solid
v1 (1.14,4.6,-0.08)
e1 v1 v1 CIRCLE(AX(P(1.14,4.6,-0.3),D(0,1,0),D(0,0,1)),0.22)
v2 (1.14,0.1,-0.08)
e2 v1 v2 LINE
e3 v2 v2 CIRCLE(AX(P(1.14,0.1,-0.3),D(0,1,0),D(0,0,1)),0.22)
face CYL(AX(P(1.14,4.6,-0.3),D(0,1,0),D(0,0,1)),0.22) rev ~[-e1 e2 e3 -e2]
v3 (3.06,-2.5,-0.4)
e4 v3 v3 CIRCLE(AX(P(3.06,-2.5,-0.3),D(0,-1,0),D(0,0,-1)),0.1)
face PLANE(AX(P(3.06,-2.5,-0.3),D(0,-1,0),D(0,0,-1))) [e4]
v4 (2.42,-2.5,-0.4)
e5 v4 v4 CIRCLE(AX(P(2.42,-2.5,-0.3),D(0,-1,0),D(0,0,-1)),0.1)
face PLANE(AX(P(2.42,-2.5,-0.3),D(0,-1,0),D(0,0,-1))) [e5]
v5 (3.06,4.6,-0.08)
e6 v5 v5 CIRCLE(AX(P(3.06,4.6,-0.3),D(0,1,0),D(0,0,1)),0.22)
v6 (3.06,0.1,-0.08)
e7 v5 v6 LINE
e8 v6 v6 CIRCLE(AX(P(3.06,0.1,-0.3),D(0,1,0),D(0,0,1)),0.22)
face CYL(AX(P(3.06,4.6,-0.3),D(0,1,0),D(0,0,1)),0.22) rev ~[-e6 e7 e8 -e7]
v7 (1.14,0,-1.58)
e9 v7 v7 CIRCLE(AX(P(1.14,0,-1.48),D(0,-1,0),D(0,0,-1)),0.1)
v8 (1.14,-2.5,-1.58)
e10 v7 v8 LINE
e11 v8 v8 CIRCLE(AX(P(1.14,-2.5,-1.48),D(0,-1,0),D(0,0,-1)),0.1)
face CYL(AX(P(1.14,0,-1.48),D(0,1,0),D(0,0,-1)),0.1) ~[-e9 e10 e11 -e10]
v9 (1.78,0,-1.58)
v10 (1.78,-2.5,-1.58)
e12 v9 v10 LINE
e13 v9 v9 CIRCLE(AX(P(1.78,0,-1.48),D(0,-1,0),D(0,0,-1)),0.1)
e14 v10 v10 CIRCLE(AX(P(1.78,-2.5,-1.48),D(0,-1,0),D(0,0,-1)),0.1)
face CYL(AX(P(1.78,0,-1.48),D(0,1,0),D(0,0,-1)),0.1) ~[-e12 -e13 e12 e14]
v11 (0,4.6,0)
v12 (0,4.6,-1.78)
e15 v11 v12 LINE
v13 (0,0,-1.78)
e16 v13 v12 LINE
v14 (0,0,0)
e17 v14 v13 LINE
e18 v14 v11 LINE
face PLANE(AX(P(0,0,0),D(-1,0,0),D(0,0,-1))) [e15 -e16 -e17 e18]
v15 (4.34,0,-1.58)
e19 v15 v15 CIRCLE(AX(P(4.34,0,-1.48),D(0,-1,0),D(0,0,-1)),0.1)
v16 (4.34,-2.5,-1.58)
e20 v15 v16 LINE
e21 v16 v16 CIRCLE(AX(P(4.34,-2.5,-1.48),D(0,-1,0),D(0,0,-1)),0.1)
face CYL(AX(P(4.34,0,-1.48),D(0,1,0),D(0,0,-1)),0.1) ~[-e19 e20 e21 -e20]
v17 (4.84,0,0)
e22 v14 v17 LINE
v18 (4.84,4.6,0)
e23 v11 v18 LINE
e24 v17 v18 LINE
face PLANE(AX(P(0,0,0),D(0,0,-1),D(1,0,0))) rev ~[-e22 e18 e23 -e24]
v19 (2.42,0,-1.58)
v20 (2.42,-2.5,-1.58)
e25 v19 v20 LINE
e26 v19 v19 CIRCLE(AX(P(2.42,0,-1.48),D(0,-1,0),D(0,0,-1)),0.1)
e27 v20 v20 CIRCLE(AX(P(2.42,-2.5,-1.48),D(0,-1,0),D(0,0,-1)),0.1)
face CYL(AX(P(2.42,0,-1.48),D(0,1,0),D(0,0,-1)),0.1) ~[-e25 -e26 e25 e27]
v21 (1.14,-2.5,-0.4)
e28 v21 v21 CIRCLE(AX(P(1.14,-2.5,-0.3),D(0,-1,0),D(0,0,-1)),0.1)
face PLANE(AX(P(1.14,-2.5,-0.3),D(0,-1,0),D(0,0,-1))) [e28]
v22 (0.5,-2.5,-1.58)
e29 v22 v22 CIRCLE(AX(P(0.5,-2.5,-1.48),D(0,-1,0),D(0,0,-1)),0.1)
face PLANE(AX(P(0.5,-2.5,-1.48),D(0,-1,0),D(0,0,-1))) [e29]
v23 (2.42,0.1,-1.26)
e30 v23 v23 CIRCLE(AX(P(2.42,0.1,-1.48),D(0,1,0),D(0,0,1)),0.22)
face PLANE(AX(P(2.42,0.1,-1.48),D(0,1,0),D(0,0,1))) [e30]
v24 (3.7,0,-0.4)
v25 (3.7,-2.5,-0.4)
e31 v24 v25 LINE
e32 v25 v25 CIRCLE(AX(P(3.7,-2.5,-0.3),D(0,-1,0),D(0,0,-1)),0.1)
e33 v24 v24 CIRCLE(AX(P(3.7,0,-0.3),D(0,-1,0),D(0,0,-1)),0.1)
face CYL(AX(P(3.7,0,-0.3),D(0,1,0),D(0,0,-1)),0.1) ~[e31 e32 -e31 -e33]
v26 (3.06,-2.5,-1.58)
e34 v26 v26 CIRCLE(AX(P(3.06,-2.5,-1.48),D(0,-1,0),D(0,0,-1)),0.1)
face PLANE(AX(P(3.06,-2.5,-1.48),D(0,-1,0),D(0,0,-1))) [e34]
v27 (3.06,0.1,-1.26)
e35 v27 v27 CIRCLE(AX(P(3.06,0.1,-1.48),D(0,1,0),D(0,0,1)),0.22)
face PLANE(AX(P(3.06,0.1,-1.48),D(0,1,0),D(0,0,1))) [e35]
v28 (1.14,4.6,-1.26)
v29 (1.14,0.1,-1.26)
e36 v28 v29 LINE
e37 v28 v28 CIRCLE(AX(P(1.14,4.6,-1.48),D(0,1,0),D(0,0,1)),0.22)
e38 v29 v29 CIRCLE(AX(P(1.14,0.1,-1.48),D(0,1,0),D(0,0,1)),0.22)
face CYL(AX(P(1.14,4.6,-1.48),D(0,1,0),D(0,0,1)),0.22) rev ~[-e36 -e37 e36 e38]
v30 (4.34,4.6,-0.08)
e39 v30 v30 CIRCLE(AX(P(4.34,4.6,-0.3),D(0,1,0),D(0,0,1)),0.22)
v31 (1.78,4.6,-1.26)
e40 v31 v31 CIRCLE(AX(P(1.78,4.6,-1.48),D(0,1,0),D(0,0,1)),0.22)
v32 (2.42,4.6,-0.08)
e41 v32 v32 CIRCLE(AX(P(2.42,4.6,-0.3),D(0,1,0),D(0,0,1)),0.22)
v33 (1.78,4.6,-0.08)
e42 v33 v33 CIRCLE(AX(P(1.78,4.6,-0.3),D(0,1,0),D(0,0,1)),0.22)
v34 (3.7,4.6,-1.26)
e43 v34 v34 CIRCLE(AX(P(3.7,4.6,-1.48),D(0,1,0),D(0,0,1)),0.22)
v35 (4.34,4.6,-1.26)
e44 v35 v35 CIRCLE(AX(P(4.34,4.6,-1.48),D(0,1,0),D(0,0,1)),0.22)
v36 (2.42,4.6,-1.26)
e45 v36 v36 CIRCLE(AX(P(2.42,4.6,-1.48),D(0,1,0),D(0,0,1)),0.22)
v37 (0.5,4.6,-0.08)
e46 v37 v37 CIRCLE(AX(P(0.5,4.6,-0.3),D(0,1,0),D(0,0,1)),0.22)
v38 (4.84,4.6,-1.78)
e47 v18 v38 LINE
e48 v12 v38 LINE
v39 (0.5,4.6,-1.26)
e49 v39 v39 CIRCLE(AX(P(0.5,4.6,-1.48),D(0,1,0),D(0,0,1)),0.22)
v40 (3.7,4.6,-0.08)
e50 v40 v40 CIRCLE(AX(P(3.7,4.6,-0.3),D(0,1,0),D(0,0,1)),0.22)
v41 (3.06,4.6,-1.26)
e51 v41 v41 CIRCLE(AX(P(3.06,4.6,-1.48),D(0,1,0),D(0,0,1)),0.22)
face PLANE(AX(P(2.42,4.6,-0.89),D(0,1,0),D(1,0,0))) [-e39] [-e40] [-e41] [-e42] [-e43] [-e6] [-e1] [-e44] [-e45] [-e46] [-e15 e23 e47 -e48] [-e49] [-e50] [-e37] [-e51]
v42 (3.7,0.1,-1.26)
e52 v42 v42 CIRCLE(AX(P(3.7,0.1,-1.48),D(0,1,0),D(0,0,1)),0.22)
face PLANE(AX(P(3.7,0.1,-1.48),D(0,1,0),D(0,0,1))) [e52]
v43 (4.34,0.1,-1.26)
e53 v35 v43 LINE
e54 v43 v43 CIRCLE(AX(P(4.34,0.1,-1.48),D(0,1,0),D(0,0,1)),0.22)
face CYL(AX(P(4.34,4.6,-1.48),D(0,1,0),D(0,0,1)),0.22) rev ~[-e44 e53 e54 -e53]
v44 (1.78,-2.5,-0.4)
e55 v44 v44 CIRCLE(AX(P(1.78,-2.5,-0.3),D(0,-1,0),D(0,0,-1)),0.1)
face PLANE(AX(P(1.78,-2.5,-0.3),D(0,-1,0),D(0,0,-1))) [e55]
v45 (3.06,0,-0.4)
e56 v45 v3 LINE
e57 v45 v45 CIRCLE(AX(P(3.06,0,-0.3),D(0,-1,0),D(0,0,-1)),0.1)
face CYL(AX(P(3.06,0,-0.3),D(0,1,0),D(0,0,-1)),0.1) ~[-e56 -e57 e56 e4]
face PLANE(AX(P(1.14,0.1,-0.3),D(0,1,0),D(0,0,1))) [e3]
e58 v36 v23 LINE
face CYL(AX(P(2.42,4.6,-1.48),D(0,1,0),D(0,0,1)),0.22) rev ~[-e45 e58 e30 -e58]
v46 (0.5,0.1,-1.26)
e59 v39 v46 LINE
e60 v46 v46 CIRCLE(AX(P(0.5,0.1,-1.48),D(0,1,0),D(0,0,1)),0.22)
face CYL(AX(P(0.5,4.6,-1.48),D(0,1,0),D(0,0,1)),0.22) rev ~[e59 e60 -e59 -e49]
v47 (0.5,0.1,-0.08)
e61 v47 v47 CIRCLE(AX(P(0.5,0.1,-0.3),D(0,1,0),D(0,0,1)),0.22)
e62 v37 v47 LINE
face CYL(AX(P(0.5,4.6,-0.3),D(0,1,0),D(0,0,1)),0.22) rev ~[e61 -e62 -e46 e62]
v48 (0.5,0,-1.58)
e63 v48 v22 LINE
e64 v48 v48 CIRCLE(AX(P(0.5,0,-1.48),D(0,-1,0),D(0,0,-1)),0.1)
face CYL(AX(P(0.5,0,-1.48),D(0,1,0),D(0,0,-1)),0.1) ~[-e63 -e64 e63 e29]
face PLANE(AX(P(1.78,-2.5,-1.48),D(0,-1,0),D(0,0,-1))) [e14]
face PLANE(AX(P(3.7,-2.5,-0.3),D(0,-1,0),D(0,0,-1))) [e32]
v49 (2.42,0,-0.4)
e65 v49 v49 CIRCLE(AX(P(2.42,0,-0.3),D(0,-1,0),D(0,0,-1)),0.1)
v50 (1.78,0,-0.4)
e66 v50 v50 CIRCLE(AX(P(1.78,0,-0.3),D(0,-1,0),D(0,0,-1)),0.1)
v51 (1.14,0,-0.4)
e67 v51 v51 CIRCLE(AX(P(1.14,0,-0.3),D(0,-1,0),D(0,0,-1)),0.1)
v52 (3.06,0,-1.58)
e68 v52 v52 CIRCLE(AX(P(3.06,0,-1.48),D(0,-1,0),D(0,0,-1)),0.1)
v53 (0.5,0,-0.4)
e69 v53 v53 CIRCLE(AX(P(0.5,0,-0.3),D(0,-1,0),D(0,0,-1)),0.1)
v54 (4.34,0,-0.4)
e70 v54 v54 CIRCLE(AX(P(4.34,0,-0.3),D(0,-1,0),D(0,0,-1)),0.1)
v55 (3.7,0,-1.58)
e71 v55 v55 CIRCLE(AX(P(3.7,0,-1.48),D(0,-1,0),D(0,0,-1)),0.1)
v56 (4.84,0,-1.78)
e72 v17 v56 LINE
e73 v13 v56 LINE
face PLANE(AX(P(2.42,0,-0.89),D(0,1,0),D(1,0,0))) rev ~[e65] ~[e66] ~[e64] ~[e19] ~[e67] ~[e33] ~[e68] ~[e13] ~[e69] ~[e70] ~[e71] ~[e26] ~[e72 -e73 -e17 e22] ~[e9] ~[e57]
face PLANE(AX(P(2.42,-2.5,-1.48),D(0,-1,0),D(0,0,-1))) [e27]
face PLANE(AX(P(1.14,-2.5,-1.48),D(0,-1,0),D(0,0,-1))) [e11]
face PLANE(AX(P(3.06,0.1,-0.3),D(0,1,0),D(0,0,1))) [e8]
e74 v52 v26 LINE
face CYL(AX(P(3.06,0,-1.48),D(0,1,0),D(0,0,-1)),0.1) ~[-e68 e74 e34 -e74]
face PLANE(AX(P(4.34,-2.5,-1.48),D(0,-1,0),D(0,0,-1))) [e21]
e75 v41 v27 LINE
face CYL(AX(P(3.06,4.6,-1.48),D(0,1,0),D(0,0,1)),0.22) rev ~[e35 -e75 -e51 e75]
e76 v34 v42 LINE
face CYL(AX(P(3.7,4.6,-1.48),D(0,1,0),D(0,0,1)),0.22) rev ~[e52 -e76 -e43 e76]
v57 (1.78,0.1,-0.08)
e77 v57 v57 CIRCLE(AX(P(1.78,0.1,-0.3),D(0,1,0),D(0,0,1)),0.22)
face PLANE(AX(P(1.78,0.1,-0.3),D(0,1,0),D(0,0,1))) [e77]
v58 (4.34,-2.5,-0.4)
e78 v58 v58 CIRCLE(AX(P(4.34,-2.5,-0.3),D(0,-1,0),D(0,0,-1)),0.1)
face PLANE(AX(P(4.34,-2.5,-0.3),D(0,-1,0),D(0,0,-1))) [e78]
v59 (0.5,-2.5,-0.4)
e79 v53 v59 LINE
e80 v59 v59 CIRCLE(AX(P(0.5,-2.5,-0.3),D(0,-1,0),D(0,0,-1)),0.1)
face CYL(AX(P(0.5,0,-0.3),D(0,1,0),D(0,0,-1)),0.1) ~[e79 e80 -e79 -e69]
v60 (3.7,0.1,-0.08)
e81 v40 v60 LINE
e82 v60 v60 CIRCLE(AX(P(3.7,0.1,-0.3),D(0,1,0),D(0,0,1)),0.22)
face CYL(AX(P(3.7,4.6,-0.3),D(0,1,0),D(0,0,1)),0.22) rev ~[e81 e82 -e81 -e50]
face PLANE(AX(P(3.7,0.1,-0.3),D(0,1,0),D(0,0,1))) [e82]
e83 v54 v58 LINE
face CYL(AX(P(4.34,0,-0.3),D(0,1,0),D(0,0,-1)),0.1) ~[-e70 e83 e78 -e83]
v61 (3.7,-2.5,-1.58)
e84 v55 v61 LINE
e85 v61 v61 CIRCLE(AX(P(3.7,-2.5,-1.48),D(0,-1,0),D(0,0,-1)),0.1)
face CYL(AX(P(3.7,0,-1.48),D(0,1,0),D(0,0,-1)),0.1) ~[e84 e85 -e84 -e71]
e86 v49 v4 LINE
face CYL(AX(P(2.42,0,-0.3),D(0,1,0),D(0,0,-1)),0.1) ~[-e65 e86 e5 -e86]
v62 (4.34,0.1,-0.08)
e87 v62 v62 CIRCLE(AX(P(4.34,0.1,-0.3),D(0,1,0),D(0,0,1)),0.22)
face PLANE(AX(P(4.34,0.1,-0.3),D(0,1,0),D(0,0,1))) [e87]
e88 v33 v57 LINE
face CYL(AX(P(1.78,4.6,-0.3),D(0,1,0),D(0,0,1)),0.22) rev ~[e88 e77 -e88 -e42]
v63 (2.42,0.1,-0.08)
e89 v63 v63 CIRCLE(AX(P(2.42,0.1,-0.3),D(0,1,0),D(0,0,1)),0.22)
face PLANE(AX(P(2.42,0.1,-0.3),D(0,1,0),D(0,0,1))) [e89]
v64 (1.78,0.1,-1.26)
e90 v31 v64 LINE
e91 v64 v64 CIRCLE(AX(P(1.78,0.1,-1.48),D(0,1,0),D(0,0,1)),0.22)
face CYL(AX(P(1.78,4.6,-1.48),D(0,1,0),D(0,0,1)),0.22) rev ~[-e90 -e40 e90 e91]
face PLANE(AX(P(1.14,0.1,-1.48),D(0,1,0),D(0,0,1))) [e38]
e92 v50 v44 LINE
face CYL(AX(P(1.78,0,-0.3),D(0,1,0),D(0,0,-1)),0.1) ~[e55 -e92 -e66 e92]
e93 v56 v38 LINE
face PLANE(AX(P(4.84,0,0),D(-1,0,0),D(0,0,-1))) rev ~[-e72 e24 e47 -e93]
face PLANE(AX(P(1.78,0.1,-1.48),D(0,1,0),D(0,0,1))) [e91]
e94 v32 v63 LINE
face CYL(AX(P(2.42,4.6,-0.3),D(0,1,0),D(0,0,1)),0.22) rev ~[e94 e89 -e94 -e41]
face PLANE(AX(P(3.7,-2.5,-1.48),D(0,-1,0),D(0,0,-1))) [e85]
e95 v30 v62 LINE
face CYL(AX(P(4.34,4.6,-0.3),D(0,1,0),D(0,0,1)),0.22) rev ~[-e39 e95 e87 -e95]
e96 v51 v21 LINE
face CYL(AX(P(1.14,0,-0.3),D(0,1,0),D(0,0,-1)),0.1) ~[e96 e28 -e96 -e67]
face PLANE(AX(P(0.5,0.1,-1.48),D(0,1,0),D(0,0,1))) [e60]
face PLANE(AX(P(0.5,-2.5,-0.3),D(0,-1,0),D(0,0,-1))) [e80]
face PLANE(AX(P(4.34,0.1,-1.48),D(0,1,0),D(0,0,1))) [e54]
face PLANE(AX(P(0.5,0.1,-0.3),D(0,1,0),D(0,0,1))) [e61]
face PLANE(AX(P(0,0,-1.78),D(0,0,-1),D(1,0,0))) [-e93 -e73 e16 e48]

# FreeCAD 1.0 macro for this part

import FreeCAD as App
import Part
import Sketcher
from FreeCAD import Vector
Q = App.Units.Quantity


def add_polygon(sketch, points):
    """Adds a closed chain of lines whose ends are joined by coincident constraints."""
    first, n = sketch.GeometryCount, len(points)
    for a, b in zip(points, points[1:] + points[:1]):
        sketch.addGeometry(Part.LineSegment(App.Vector(*a, 0), App.Vector(*b, 0)), False)
    for i in range(n):
        sketch.addConstraint(Sketcher.Constraint("Coincident", first + i, 2, first + (i + 1) % n, 1))

doc = App.newDocument("Part")
body = doc.addObject("PartDesign::Body", "Body")

sketch1 = doc.addObject("Sketcher::SketchObject", "Sketch")
body.addObject(sketch1)
sketch1.AttachmentSupport = (doc.XZ_Plane, [""])
sketch1.MapMode = "FlatFace"
add_polygon(sketch1, [(0, -1.8), (0, 0), (4.8, 0), (4.8, -1.8)])
sketch1.addConstraint([
    Sketcher.Constraint("Vertical", 0),
    Sketcher.Constraint("Horizontal", 1),
    Sketcher.Constraint("Vertical", 2),
    Sketcher.Constraint("Horizontal", 3),
    Sketcher.Constraint("Coincident", 0, 2, -1, 1),
    Sketcher.Constraint("DistanceX", 1, 1, 1, 2, Q("4.84 mm")),
    Sketcher.Constraint("DistanceY", 0, 1, 0, 2, Q("1.78 mm")),
])
pad1 = doc.addObject("PartDesign::Pad", "Pad")
body.addObject(pad1)
pad1.Profile = sketch1
pad1.Length = 4.6
pad1.Reversed = True

sketch2 = doc.addObject("Sketcher::SketchObject", "Sketch001")
body.addObject(sketch2)
sketch2.AttachmentSupport = (doc.XZ_Plane, [""])
sketch2.MapMode = "FlatFace"
sketch2.AttachmentOffset = App.Placement(Vector(0, 0, -4.6), App.Rotation())
sketch2.addGeometry([
    Part.Circle(Vector(0.5, -1.48, 0), Vector(0, 0, 1), 0.22),
    Part.Circle(Vector(1.14, -1.48, 0), Vector(0, 0, 1), 0.22),
    Part.Circle(Vector(1.78, -1.48, 0), Vector(0, 0, 1), 0.22),
    Part.Circle(Vector(2.42, -1.48, 0), Vector(0, 0, 1), 0.22),
    Part.Circle(Vector(3.06, -1.48, 0), Vector(0, 0, 1), 0.22),
    Part.Circle(Vector(3.7, -1.48, 0), Vector(0, 0, 1), 0.22),
    Part.Circle(Vector(4.34, -1.48, 0), Vector(0, 0, 1), 0.22),
    Part.Circle(Vector(0.5, -0.3, 0), Vector(0, 0, 1), 0.22),
    Part.Circle(Vector(1.14, -0.3, 0), Vector(0, 0, 1), 0.22),
    Part.Circle(Vector(1.78, -0.3, 0), Vector(0, 0, 1), 0.22),
    Part.Circle(Vector(2.42, -0.3, 0), Vector(0, 0, 1), 0.22),
    Part.Circle(Vector(3.06, -0.3, 0), Vector(0, 0, 1), 0.22),
    Part.Circle(Vector(3.7, -0.3, 0), Vector(0, 0, 1), 0.22),
    Part.Circle(Vector(4.34, -0.3, 0), Vector(0, 0, 1), 0.22),
], False)
sketch2.addConstraint([
    Sketcher.Constraint("Equal", 0, 1),
    Sketcher.Constraint("Equal", 1, 2),
    Sketcher.Constraint("Equal", 2, 3),
    Sketcher.Constraint("Equal", 3, 4),
    Sketcher.Constraint("Equal", 4, 5),
    Sketcher.Constraint("Equal", 5, 6),
    Sketcher.Constraint("Equal", 6, 7),
    Sketcher.Constraint("Equal", 7, 8),
    Sketcher.Constraint("Equal", 8, 9),
    Sketcher.Constraint("Equal", 9, 10),
    Sketcher.Constraint("Equal", 10, 11),
    Sketcher.Constraint("Equal", 11, 12),
    Sketcher.Constraint("Equal", 12, 13),
    Sketcher.Constraint("Horizontal", 0, 3, 1, 3),
    Sketcher.Constraint("Horizontal", 1, 3, 2, 3),
    Sketcher.Constraint("Horizontal", 2, 3, 3, 3),
    Sketcher.Constraint("Horizontal", 3, 3, 4, 3),
    Sketcher.Constraint("Horizontal", 4, 3, 5, 3),
    Sketcher.Constraint("Horizontal", 5, 3, 6, 3),
    Sketcher.Constraint("Horizontal", 7, 3, 8, 3),
    Sketcher.Constraint("Horizontal", 8, 3, 9, 3),
    Sketcher.Constraint("Horizontal", 9, 3, 10, 3),
    Sketcher.Constraint("Horizontal", 10, 3, 11, 3),
    Sketcher.Constraint("Horizontal", 11, 3, 12, 3),
    Sketcher.Constraint("Horizontal", 12, 3, 13, 3),
    Sketcher.Constraint("Vertical", 0, 3, 7, 3),
    Sketcher.Constraint("Vertical", 1, 3, 8, 3),
    Sketcher.Constraint("Vertical", 2, 3, 9, 3),
    Sketcher.Constraint("Vertical", 3, 3, 10, 3),
    Sketcher.Constraint("Vertical", 4, 3, 11, 3),
    Sketcher.Constraint("Vertical", 5, 3, 12, 3),
    Sketcher.Constraint("Vertical", 6, 3, 13, 3),
    Sketcher.Constraint("Diameter", 0, Q("0.44 mm")),
    Sketcher.Constraint("DistanceX", -1, 1, 0, 3, Q("0.5 mm")),
    Sketcher.Constraint("DistanceX", -1, 1, 5, 3, Q("3.7 mm")),
    Sketcher.Constraint("DistanceY", 7, 3, -1, 1, Q("0.3 mm")),
    Sketcher.Constraint("DistanceX", 1, 3, 6, 3, Q("3.2 mm")),
    Sketcher.Constraint("DistanceY", 0, 3, -1, 1, Q("1.48 mm")),
    Sketcher.Constraint("DistanceX", -1, 1, 1, 3, Q("1.14 mm")),
    Sketcher.Constraint("DistanceX", -1, 1, 2, 3, Q("1.78 mm")),
    Sketcher.Constraint("DistanceX", -1, 1, 3, 3, Q("2.42 mm")),
    Sketcher.Constraint("DistanceX", -1, 1, 4, 3, Q("3.06 mm")),
])
pocket1 = doc.addObject("PartDesign::Pocket", "Pocket")
body.addObject(pocket1)
pocket1.Profile = sketch2
pocket1.Length = 4.5
pocket1.Reversed = True

sketch3 = doc.addObject("Sketcher::SketchObject", "Sketch002")
body.addObject(sketch3)
sketch3.AttachmentSupport = (doc.XZ_Plane, [""])
sketch3.MapMode = "FlatFace"
sketch3.addGeometry([
    Part.Circle(Vector(0.5, -0.3, 0), Vector(0, 0, 1), 0.1),
    Part.Circle(Vector(1.14, -0.3, 0), Vector(0, 0, 1), 0.1),
    Part.Circle(Vector(1.78, -0.3, 0), Vector(0, 0, 1), 0.1),
    Part.Circle(Vector(2.42, -0.3, 0), Vector(0, 0, 1), 0.1),
    Part.Circle(Vector(3.06, -0.3, 0), Vector(0, 0, 1), 0.1),
    Part.Circle(Vector(3.7, -0.3, 0), Vector(0, 0, 1), 0.1),
    Part.Circle(Vector(4.34, -0.3, 0), Vector(0, 0, 1), 0.1),
    Part.Circle(Vector(0.5, -1.48, 0), Vector(0, 0, 1), 0.1),
    Part.Circle(Vector(1.14, -1.48, 0), Vector(0, 0, 1), 0.1),
    Part.Circle(Vector(1.78, -1.48, 0), Vector(0, 0, 1), 0.1),
    Part.Circle(Vector(2.42, -1.48, 0), Vector(0, 0, 1), 0.1),
    Part.Circle(Vector(3.06, -1.48, 0), Vector(0, 0, 1), 0.1),
    Part.Circle(Vector(3.7, -1.48, 0), Vector(0, 0, 1), 0.1),
    Part.Circle(Vector(4.34, -1.48, 0), Vector(0, 0, 1), 0.1),
], False)
sketch3.addConstraint([
    Sketcher.Constraint("Equal", 0, 1),
    Sketcher.Constraint("Equal", 1, 2),
    Sketcher.Constraint("Equal", 2, 3),
    Sketcher.Constraint("Equal", 3, 4),
    Sketcher.Constraint("Equal", 4, 5),
    Sketcher.Constraint("Equal", 5, 6),
    Sketcher.Constraint("Equal", 6, 7),
    Sketcher.Constraint("Equal", 7, 8),
    Sketcher.Constraint("Equal", 8, 9),
    Sketcher.Constraint("Equal", 9, 10),
    Sketcher.Constraint("Equal", 10, 11),
    Sketcher.Constraint("Equal", 11, 12),
    Sketcher.Constraint("Equal", 12, 13),
    Sketcher.Constraint("Horizontal", 0, 3, 1, 3),
    Sketcher.Constraint("Horizontal", 1, 3, 2, 3),
    Sketcher.Constraint("Horizontal", 2, 3, 3, 3),
    Sketcher.Constraint("Horizontal", 3, 3, 4, 3),
    Sketcher.Constraint("Horizontal", 4, 3, 5, 3),
    Sketcher.Constraint("Horizontal", 5, 3, 6, 3),
    Sketcher.Constraint("Horizontal", 7, 3, 8, 3),
    Sketcher.Constraint("Horizontal", 8, 3, 9, 3),
    Sketcher.Constraint("Horizontal", 9, 3, 10, 3),
    Sketcher.Constraint("Horizontal", 10, 3, 11, 3),
    Sketcher.Constraint("Horizontal", 11, 3, 12, 3),
    Sketcher.Constraint("Horizontal", 12, 3, 13, 3),
    Sketcher.Constraint("Vertical", 0, 3, 7, 3),
    Sketcher.Constraint("Vertical", 1, 3, 8, 3),
    Sketcher.Constraint("Vertical", 2, 3, 9, 3),
    Sketcher.Constraint("Vertical", 3, 3, 10, 3),
    Sketcher.Constraint("Vertical", 4, 3, 11, 3),
    Sketcher.Constraint("Vertical", 5, 3, 12, 3),
    Sketcher.Constraint("Vertical", 6, 3, 13, 3),
    Sketcher.Constraint("Diameter", 0, Q("0.2 mm")),
    Sketcher.Constraint("DistanceX", -1, 1, 0, 3, Q("0.5 mm")),
    Sketcher.Constraint("DistanceY", 0, 3, -1, 1, Q("0.3 mm")),
    Sketcher.Constraint("DistanceX", -1, 1, 5, 3, Q("3.7 mm")),
    Sketcher.Constraint("DistanceX", 1, 3, 6, 3, Q("3.2 mm")),
    Sketcher.Constraint("DistanceX", -1, 1, 1, 3, Q("1.14 mm")),
    Sketcher.Constraint("DistanceX", -1, 1, 2, 3, Q("1.78 mm")),
    Sketcher.Constraint("DistanceX", -1, 1, 3, 3, Q("2.42 mm")),
    Sketcher.Constraint("DistanceX", -1, 1, 4, 3, Q("3.06 mm")),
    Sketcher.Constraint("DistanceY", 7, 3, -1, 1, Q("1.48 mm")),
])
pad2 = doc.addObject("PartDesign::Pad", "Pad001")
body.addObject(pad2)
pad2.Profile = sketch3
pad2.Length = 2.5

doc.recompute()
